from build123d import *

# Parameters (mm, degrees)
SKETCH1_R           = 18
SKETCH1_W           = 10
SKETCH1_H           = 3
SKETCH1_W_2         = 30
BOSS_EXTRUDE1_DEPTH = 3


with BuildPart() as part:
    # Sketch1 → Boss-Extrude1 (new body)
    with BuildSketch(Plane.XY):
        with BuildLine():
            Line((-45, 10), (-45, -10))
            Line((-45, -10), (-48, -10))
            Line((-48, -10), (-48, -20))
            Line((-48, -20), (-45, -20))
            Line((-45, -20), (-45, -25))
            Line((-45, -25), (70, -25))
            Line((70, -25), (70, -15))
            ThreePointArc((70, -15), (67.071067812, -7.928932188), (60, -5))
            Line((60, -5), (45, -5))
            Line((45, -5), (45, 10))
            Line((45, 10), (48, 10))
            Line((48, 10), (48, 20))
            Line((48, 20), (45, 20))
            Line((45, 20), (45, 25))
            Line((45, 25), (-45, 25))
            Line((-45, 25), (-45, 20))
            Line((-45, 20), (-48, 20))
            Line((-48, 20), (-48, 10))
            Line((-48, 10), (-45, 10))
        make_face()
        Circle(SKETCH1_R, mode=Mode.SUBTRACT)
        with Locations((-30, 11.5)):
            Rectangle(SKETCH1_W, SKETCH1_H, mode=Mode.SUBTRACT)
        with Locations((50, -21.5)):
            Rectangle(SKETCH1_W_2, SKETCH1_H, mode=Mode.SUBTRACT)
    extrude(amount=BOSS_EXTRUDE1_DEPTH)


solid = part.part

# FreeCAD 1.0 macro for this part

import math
import FreeCAD as App
import Part
import Sketcher
from FreeCAD import Vector
Q = App.Units.Quantity

doc = App.newDocument("Part")
params = doc.addObject("Spreadsheet::Sheet", "Params")
for row, (alias, value) in enumerate([
    ("sketch1_diameter", "36 mm"),
    ("sketch1_radius", "10 mm"),
    ("sketch1_width", "3 mm"),
    ("sketch1_width2", "115 mm"),
    ("sketch1_width3", "15 mm"),
    ("pad1_length", "3 mm"),
], start=1):
    params.set(f"A{row}", alias)
    params.set(f"B{row}", "=" + value)
    params.setAlias(f"B{row}", alias)

body = doc.addObject("PartDesign::Body", "Body")

# Sketch on XY plane
sketch1 = doc.addObject("Sketcher::SketchObject", "Sketch")
body.addObject(sketch1)
sketch1.AttachmentSupport = (doc.XY_Plane, [""])
sketch1.MapMode = "FlatFace"
sketch1.addGeometry(Part.LineSegment(Vector(-45, 10, 0), Vector(-45, -10, 0)), False)
sketch1.addGeometry(Part.LineSegment(Vector(-45, -10, 0), Vector(-48, -10, 0)), False)
sketch1.addGeometry(Part.LineSegment(Vector(-48, -10, 0), Vector(-48, -20, 0)), False)
sketch1.addGeometry(Part.LineSegment(Vector(-48, -20, 0), Vector(-45, -20, 0)), False)
sketch1.addGeometry(Part.LineSegment(Vector(-45, -20, 0), Vector(-45, -25, 0)), False)
sketch1.addGeometry(Part.LineSegment(Vector(-45, -25, 0), Vector(70, -25, 0)), False)
sketch1.addGeometry(Part.LineSegment(Vector(70, -25, 0), Vector(70, -15, 0)), False)
sketch1.addGeometry(Part.ArcOfCircle(Part.Circle(Vector(60, -15, 0), Vector(0, 0, 1), 10), math.radians(0), math.radians(90)), False)
sketch1.addGeometry(Part.LineSegment(Vector(60, -5, 0), Vector(45, -5, 0)), False)
sketch1.addGeometry(Part.LineSegment(Vector(45, -5, 0), Vector(45, 10, 0)), False)
sketch1.addGeometry(Part.LineSegment(Vector(45, 10, 0), Vector(48, 10, 0)), False)
sketch1.addGeometry(Part.LineSegment(Vector(48, 10, 0), Vector(48, 20, 0)), False)
sketch1.addGeometry(Part.LineSegment(Vector(48, 20, 0), Vector(45, 20, 0)), False)
sketch1.addGeometry(Part.LineSegment(Vector(45, 20, 0), Vector(45, 25, 0)), False)
sketch1.addGeometry(Part.LineSegment(Vector(45, 25, 0), Vector(-45, 25, 0)), False)
sketch1.addGeometry(Part.LineSegment(Vector(-45, 25, 0), Vector(-45, 20, 0)), False)
sketch1.addGeometry(Part.LineSegment(Vector(-45, 20, 0), Vector(-48, 20, 0)), False)
sketch1.addGeometry(Part.LineSegment(Vector(-48, 20, 0), Vector(-48, 10, 0)), False)
sketch1.addGeometry(Part.LineSegment(Vector(-48, 10, 0), Vector(-45, 10, 0)), False)
sketch1.addGeometry(Part.LineSegment(Vector(65, -23, 0), Vector(35, -23, 0)), False)
sketch1.addGeometry(Part.LineSegment(Vector(35, -23, 0), Vector(35, -20, 0)), False)
sketch1.addGeometry(Part.LineSegment(Vector(35, -20, 0), Vector(65, -20, 0)), False)
sketch1.addGeometry(Part.LineSegment(Vector(65, -20, 0), Vector(65, -23, 0)), False)
sketch1.addGeometry(Part.Circle(Vector(0, 0, 0), Vector(0, 0, 1), 18), False)
sketch1.addGeometry(Part.LineSegment(Vector(-25, 10, 0), Vector(-35, 10, 0)), False)
sketch1.addGeometry(Part.LineSegment(Vector(-35, 10, 0), Vector(-35, 13, 0)), False)
sketch1.addGeometry(Part.LineSegment(Vector(-35, 13, 0), Vector(-25, 13, 0)), False)
sketch1.addGeometry(Part.LineSegment(Vector(-25, 13, 0), Vector(-25, 10, 0)), False)
sketch1.addConstraint(Sketcher.Constraint("Coincident", 0, 2, 1, 1))
sketch1.addConstraint(Sketcher.Constraint("Coincident", 1, 2, 2, 1))
sketch1.addConstraint(Sketcher.Constraint("Coincident", 2, 2, 3, 1))
sketch1.addConstraint(Sketcher.Constraint("Coincident", 3, 2, 4, 1))
sketch1.addConstraint(Sketcher.Constraint("Coincident", 4, 2, 5, 1))
sketch1.addConstraint(Sketcher.Constraint("Coincident", 5, 2, 6, 1))
sketch1.addConstraint(Sketcher.Constraint("Tangent", 6, 2, 7, 1))
sketch1.addConstraint(Sketcher.Constraint("Tangent", 7, 2, 8, 1))
sketch1.addConstraint(Sketcher.Constraint("Coincident", 8, 2, 9, 1))
sketch1.addConstraint(Sketcher.Constraint("Coincident", 9, 2, 10, 1))
sketch1.addConstraint(Sketcher.Constraint("Coincident", 10, 2, 11, 1))
sketch1.addConstraint(Sketcher.Constraint("Coincident", 11, 2, 12, 1))
sketch1.addConstraint(Sketcher.Constraint("Coincident", 12, 2, 13, 1))
sketch1.addConstraint(Sketcher.Constraint("Coincident", 13, 2, 14, 1))
sketch1.addConstraint(Sketcher.Constraint("Coincident", 14, 2, 15, 1))
sketch1.addConstraint(Sketcher.Constraint("Coincident", 15, 2, 16, 1))
sketch1.addConstraint(Sketcher.Constraint("Coincident", 16, 2, 17, 1))
sketch1.addConstraint(Sketcher.Constraint("Coincident", 17, 2, 18, 1))
sketch1.addConstraint(Sketcher.Constraint("Coincident", 18, 2, 0, 1))
sketch1.addConstraint(Sketcher.Constraint("Coincident", 19, 2, 20, 1))
sketch1.addConstraint(Sketcher.Constraint("Coincident", 20, 2, 21, 1))
sketch1.addConstraint(Sketcher.Constraint("Coincident", 21, 2, 22, 1))
sketch1.addConstraint(Sketcher.Constraint("Coincident", 22, 2, 19, 1))
sketch1.addConstraint(Sketcher.Constraint("Coincident", 24, 2, 25, 1))
sketch1.addConstraint(Sketcher.Constraint("Coincident", 25, 2, 26, 1))
sketch1.addConstraint(Sketcher.Constraint("Coincident", 26, 2, 27, 1))
sketch1.addConstraint(Sketcher.Constraint("Coincident", 27, 2, 24, 1))
sketch1.addConstraint(Sketcher.Constraint("Vertical", 0))
sketch1.addConstraint(Sketcher.Constraint("Horizontal", 1))
sketch1.addConstraint(Sketcher.Constraint("Vertical", 2))
sketch1.addConstraint(Sketcher.Constraint("Horizontal", 3))
sketch1.addConstraint(Sketcher.Constraint("Vertical", 4))
sketch1.addConstraint(Sketcher.Constraint("Horizontal", 5))
sketch1.addConstraint(Sketcher.Constraint("Vertical", 6))
sketch1.addConstraint(Sketcher.Constraint("Horizontal", 8))
sketch1.addConstraint(Sketcher.Constraint("Vertical", 9))
sketch1.addConstraint(Sketcher.Constraint("Horizontal", 10))
sketch1.addConstraint(Sketcher.Constraint("Vertical", 11))
sketch1.addConstraint(Sketcher.Constraint("Horizontal", 12))
sketch1.addConstraint(Sketcher.Constraint("Vertical", 13))
sketch1.addConstraint(Sketcher.Constraint("Horizontal", 14))
sketch1.addConstraint(Sketcher.Constraint("Vertical", 15))
sketch1.addConstraint(Sketcher.Constraint("Horizontal", 16))
sketch1.addConstraint(Sketcher.Constraint("Vertical", 17))
sketch1.addConstraint(Sketcher.Constraint("Horizontal", 18))
sketch1.addConstraint(Sketcher.Constraint("Horizontal", 19))
sketch1.addConstraint(Sketcher.Constraint("Vertical", 20))
sketch1.addConstraint(Sketcher.Constraint("Horizontal", 21))
sketch1.addConstraint(Sketcher.Constraint("Vertical", 22))
sketch1.addConstraint(Sketcher.Constraint("Horizontal", 24))
sketch1.addConstraint(Sketcher.Constraint("Vertical", 25))
sketch1.addConstraint(Sketcher.Constraint("Horizontal", 26))
sketch1.addConstraint(Sketcher.Constraint("Vertical", 27))
sketch1.addConstraint(Sketcher.Constraint("Coincident", 23, 3, -1, 1))
sketch1.addConstraint(Sketcher.Constraint("Symmetric", 0, 2, 9, 2, -1, 1))
sketch1.addConstraint(Sketcher.Constraint("Symmetric", 2, 2, 11, 2, -1, 1))
sketch1.addConstraint(Sketcher.Constraint("Symmetric", 4, 2, 13, 2, -1, 1))
sketch1.addConstraint(Sketcher.Constraint("Symmetric", 12, 2, 15, 2, -2))
sketch1.addConstraint(Sketcher.Constraint("Symmetric", 10, 2, 17, 2, -2))
sketch1.addConstraint(Sketcher.Constraint("Horizontal", 3, 2, 20, 2))
sketch1.addConstraint(Sketcher.Constraint("Horizontal", 18, 2, 24, 2))
sketch1.addConstraint(Sketcher.Constraint("Vertical", 0, 2, 3, 2))
sketch1.addConstraint(Sketcher.Constraint("Equal", 26, 2))
sketch1.addConstraint(Sketcher.Constraint("Equal", 2, 6))
sketch1.addConstraint(Sketcher.Constraint("Equal", 8, 9))
sketch1.addConstraint(Sketcher.Constraint("Equal", 18, 20))
sketch1.addConstraint(Sketcher.Constraint("Equal", 22, 25))
sketch1.addConstraint(Sketcher.Constraint("Diameter", 23, Q("36 mm")))
sketch1.addConstraint(Sketcher.Constraint("Radius", 7, Q("10 mm")))
sketch1.addConstraint(Sketcher.Constraint("DistanceX", 1, 2, 1, 1, Q("3 mm")))
sketch1.addConstraint(Sketcher.Constraint("DistanceX", 5, 1, 5, 2, Q("115 mm")))
sketch1.addConstraint(Sketcher.Constraint("DistanceX", 8, 2, 8, 1, Q("15 mm")))
sketch1.addConstraint(Sketcher.Constraint("DistanceX", 19, 2, 19, 1, Q("30 mm")))
sketch1.addConstraint(Sketcher.Constraint("DistanceX", 24, 2, 24, 1, Q("10 mm")))
sketch1.addConstraint(Sketcher.Constraint("DistanceY", 0, 2, 0, 1, Q("20 mm")))
sketch1.addConstraint(Sketcher.Constraint("DistanceX", -1, 1, 19, 2, Q("35 mm")))
sketch1.addConstraint(Sketcher.Constraint("DistanceX", 24, 2, -1, 1, Q("35 mm")))
sketch1.setExpression("Constraints[67]", "Params.sketch1_diameter")
sketch1.setExpression("Constraints[68]", "Params.sketch1_radius")
sketch1.setExpression("Constraints[69]", "Params.sketch1_width")
sketch1.setExpression("Constraints[70]", "Params.sketch1_width2")
sketch1.setExpression("Constraints[71]", "Params.sketch1_width3")
pad1 = doc.addObject("PartDesign::Pad", "Pad")
body.addObject(pad1)
pad1.Profile = sketch1
pad1.setExpression("Length", "Params.pad1_length")

doc.recompute()
